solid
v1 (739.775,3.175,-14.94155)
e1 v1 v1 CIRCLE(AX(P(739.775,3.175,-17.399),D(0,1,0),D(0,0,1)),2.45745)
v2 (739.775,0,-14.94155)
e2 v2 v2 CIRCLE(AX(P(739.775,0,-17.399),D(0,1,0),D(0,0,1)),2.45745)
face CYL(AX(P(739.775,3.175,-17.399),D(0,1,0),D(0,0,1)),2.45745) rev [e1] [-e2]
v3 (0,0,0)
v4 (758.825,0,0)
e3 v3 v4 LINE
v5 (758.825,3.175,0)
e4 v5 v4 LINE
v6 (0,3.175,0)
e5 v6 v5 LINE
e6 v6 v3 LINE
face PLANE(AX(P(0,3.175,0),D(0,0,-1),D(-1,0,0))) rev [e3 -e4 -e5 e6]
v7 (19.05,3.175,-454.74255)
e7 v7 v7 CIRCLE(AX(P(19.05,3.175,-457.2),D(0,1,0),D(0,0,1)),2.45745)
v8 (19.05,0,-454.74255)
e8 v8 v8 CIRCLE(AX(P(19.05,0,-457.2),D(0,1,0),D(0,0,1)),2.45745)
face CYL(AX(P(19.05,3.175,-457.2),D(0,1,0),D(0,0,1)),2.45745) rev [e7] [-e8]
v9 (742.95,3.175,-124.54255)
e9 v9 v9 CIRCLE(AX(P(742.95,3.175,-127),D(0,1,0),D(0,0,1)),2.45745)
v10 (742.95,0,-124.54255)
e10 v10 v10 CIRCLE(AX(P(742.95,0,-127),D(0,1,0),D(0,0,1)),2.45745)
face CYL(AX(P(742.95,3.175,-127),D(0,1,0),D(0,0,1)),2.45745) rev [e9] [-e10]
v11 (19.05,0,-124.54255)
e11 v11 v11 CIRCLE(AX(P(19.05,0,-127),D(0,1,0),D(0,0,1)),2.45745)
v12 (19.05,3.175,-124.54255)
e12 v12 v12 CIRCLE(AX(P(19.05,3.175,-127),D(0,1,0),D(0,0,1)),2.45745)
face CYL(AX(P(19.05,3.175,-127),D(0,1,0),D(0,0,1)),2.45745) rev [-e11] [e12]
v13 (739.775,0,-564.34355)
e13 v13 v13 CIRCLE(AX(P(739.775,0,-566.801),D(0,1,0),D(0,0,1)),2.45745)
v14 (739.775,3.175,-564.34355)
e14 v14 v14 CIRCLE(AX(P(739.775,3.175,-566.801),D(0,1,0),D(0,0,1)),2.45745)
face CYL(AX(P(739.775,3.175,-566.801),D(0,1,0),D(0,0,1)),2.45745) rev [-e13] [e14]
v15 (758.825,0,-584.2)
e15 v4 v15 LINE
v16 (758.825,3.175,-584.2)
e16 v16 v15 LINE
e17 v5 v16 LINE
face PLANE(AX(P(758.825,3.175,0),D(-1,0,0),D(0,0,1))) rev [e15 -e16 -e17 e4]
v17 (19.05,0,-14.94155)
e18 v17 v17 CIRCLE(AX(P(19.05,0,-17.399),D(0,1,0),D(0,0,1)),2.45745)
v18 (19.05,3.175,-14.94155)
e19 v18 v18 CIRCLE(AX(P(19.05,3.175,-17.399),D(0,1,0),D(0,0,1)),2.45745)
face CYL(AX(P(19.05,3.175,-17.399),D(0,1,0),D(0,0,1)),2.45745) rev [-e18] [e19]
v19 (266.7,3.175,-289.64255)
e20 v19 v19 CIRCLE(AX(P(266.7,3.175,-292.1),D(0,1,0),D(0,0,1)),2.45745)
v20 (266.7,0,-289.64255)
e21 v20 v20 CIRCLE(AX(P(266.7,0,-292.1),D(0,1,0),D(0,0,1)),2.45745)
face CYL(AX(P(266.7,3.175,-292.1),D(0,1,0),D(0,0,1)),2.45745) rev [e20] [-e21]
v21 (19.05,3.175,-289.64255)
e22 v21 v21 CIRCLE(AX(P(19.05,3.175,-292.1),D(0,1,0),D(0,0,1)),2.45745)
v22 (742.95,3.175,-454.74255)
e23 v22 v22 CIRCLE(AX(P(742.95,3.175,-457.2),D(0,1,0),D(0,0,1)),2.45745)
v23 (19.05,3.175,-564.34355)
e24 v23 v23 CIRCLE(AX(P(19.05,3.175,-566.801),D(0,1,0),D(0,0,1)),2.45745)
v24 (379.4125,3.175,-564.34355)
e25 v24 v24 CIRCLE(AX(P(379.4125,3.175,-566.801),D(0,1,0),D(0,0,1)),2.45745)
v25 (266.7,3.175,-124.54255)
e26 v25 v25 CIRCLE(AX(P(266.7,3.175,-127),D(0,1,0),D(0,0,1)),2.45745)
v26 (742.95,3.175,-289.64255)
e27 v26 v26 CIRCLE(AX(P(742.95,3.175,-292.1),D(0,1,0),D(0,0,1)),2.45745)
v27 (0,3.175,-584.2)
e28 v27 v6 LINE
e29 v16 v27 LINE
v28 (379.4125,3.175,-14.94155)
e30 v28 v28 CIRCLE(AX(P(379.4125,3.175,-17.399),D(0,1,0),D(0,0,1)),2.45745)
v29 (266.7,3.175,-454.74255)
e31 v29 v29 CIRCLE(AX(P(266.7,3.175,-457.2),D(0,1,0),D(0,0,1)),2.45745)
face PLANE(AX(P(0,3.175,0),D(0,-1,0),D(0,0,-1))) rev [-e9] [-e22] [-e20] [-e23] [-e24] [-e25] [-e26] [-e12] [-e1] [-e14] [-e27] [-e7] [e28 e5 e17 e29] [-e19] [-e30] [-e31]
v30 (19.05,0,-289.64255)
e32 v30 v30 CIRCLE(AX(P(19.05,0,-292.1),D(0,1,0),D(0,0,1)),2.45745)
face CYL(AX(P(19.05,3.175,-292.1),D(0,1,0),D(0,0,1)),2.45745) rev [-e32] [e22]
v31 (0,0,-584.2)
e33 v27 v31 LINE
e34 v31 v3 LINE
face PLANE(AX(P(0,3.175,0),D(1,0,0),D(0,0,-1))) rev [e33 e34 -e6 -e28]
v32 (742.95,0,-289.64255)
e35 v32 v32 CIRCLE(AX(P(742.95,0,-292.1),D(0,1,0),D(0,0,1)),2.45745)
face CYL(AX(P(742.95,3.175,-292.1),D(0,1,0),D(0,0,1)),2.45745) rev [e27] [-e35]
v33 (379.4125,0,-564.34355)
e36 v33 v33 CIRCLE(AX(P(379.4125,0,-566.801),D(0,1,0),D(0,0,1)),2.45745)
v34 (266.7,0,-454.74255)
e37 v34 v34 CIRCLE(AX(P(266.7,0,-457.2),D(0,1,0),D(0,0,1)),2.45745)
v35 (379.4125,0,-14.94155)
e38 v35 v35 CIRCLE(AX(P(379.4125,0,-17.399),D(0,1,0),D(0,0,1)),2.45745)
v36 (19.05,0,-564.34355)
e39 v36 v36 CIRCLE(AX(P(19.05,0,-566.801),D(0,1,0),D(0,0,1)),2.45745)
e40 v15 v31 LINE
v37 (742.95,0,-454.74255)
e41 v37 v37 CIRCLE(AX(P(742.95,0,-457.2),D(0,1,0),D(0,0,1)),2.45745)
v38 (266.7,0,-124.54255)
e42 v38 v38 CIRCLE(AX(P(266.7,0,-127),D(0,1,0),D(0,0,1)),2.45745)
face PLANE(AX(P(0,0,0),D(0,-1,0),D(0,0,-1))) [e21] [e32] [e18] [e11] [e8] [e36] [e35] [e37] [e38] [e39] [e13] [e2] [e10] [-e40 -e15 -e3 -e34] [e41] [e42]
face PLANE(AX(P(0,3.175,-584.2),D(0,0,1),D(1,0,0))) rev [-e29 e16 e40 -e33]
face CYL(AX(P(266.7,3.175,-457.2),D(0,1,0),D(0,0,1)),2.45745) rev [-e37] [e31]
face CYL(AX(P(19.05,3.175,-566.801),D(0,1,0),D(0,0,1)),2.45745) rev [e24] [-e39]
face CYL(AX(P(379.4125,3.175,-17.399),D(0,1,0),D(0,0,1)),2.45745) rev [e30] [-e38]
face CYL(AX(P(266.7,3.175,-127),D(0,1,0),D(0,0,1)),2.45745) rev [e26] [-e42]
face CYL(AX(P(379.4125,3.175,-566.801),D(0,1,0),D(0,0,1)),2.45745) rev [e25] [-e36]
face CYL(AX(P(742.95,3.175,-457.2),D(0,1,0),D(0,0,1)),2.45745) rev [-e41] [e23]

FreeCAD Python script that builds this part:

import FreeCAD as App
import Part
import Sketcher
Q = App.Units.Quantity


def add_polygon(sketch, points):
    """Adds a closed chain of lines whose ends are joined by coincident constraints."""
    first, n = sketch.GeometryCount, len(points)
    for a, b in zip(points, points[1:] + points[:1]):
        sketch.addGeometry(Part.LineSegment(App.Vector(*a, 0), App.Vector(*b, 0)), False)
    for i in range(n):
        sketch.addConstraint(Sketcher.Constraint("Coincident", first + i, 2, first + (i + 1) % n, 1))

doc = App.newDocument("Part")
body = doc.addObject("PartDesign::Body", "Body")

# Sketch on XZ plane
sketch1 = doc.addObject("Sketcher::SketchObject", "Sketch")
body.addObject(sketch1)
sketch1.AttachmentSupport = (doc.XZ_Plane, [""])
sketch1.MapMode = "FlatFace"
add_polygon(sketch1, [(0, -584.2), (0, 0), (758.825, 0), (758.825, -584.2)])  # lines 0-3
sketch1.addConstraint([
    Sketcher.Constraint("Vertical", 0),
    Sketcher.Constraint("Horizontal", 1),
    Sketcher.Constraint("Vertical", 2),
    Sketcher.Constraint("Horizontal", 3),
    Sketcher.Constraint("Coincident", 0, 2, -1, 1),
    Sketcher.Constraint("DistanceY", 0, 1, 0, 2, Q("23 in")),
    Sketcher.Constraint("DistanceX", 1, 1, 1, 2, Q("29.875 in")),
])
pad1 = doc.addObject("PartDesign::Pad", "Pad")
body.addObject(pad1)
pad1.Profile = sketch1
pad1.Length = Q("0.125 in")
pad1.Reversed = True

# Sketch on XZ plane
sketch2 = doc.addObject("Sketcher::SketchObject", "Sketch001")
body.addObject(sketch2)
sketch2.AttachmentSupport = (doc.XZ_Plane, [""])
sketch2.MapMode = "FlatFace"
sketch2.AttachmentOffset = App.Placement(App.Vector(0, 0, -0.125 * 25.4), App.Rotation())
sketch2.addGeometry([
    Part.Circle(App.Vector(19.05, -566.801, 0), App.Vector(0, 0, 1), 2.45745),  # 0
    Part.Circle(App.Vector(739.775, -566.801, 0), App.Vector(0, 0, 1), 2.45745),  # 1
    Part.Circle(App.Vector(19.05, -17.399, 0), App.Vector(0, 0, 1), 2.45745),  # 2
    Part.Circle(App.Vector(739.775, -17.399, 0), App.Vector(0, 0, 1), 2.45745),  # 3
    Part.Circle(App.Vector(379.4125, -566.801, 0), App.Vector(0, 0, 1), 2.45745),  # 4
    Part.Circle(App.Vector(19.05, -292.1, 0), App.Vector(0, 0, 1), 2.45745),  # 5
    Part.Circle(App.Vector(379.4125, -17.399, 0), App.Vector(0, 0, 1), 2.45745),  # 6
    Part.Circle(App.Vector(742.95, -292.1, 0), App.Vector(0, 0, 1), 2.45745),  # 7
    Part.Circle(App.Vector(19.05, -457.2, 0), App.Vector(0, 0, 1), 2.45745),  # 8
    Part.Circle(App.Vector(19.05, -127, 0), App.Vector(0, 0, 1), 2.45745),  # 9
    Part.Circle(App.Vector(742.95, -127, 0), App.Vector(0, 0, 1), 2.45745),  # 10
    Part.Circle(App.Vector(742.95, -457.2, 0), App.Vector(0, 0, 1), 2.45745),  # 11
], False)
sketch2.addConstraint([
    Sketcher.Constraint("Equal", 0, 1),
    Sketcher.Constraint("Equal", 1, 2),
    Sketcher.Constraint("Equal", 2, 3),
    Sketcher.Constraint("Equal", 3, 4),
    Sketcher.Constraint("Equal", 4, 5),
    Sketcher.Constraint("Equal", 5, 6),
    Sketcher.Constraint("Equal", 6, 7),
    Sketcher.Constraint("Equal", 7, 8),
    Sketcher.Constraint("Equal", 8, 9),
    Sketcher.Constraint("Equal", 9, 10),
    Sketcher.Constraint("Equal", 10, 11),
    Sketcher.Constraint("Horizontal", 0, 3, 1, 3),
    Sketcher.Constraint("Horizontal", 2, 3, 3, 3),
    Sketcher.Constraint("Horizontal", 1, 3, 4, 3),
    Sketcher.Constraint("Horizontal", 3, 3, 6, 3),
    Sketcher.Constraint("Horizontal", 5, 3, 7, 3),
    Sketcher.Constraint("Horizontal", 9, 3, 10, 3),
    Sketcher.Constraint("Horizontal", 8, 3, 11, 3),
    Sketcher.Constraint("Vertical", 0, 3, 2, 3),
    Sketcher.Constraint("Vertical", 1, 3, 3, 3),
    Sketcher.Constraint("Vertical", 2, 3, 5, 3),
    Sketcher.Constraint("Vertical", 4, 3, 6, 3),
    Sketcher.Constraint("Vertical", 5, 3, 8, 3),
    Sketcher.Constraint("Vertical", 8, 3, 9, 3),
    Sketcher.Constraint("Vertical", 7, 3, 10, 3),
    Sketcher.Constraint("Vertical", 10, 3, 11, 3),
    Sketcher.Constraint("DistanceY", 8, 3, -1, 1, Q("18 in")),
    Sketcher.Constraint("DistanceY", 9, 3, -1, 1, Q("5 in")),
    Sketcher.Constraint("Diameter", 0, Q("0.1935 in")),
    Sketcher.Constraint("DistanceY", 5, 3, -1, 1, Q("11.5 in")),
    Sketcher.Constraint("DistanceX", 5, 3, 7, 3, Q("28.5 in")),
    Sketcher.Constraint("DistanceX", -1, 1, 0, 3, Q("0.75 in")),
    Sketcher.Constraint("DistanceY", 0, 3, 2, 3, Q("21.63 in")),
    Sketcher.Constraint("DistanceY", 0, 3, -1, 1, Q("22.315 in")),
    Sketcher.Constraint("DistanceX", -1, 1, 1, 3, Q("29.125 in")),
    Sketcher.Constraint("DistanceX", -1, 1, 4, 3, Q("14.9375 in")),
])
doc.recompute()
hole = doc.addObject("PartDesign::Hole", "Hole")
body.addObject(hole)
hole.Profile = sketch2
hole.ThreadType = "None"
hole.Diameter = Q("0.1935 in")
hole.DepthType = "ThroughAll"
hole.Reversed = True

# Sketch on XZ plane
sketch3 = doc.addObject("Sketcher::SketchObject", "Sketch002")
body.addObject(sketch3)
sketch3.AttachmentSupport = (doc.XZ_Plane, [""])
sketch3.MapMode = "FlatFace"
sketch3.AttachmentOffset = App.Placement(App.Vector(0, 0, -0.125 * 25.4), App.Rotation())
sketch3.addGeometry([
    Part.Circle(App.Vector(266.7, -292.1, 0), App.Vector(0, 0, 1), 2.45745),
    Part.Circle(App.Vector(266.7, -127, 0), App.Vector(0, 0, 1), 2.45745),
    Part.Circle(App.Vector(266.7, -457.2, 0), App.Vector(0, 0, 1), 2.45745),
], False)
sketch3.addConstraint([
    Sketcher.Constraint("Equal", 0, 1),
    Sketcher.Constraint("Equal", 1, 2),
    Sketcher.Constraint("Vertical", 0, 3, 1, 3),
    Sketcher.Constraint("Vertical", 1, 3, 2, 3),
    Sketcher.Constraint("DistanceY", 1, 3, -1, 1, Q("5 in")),
    Sketcher.Constraint("DistanceY", 2, 3, -1, 1, Q("18 in")),
    Sketcher.Constraint("Diameter", 0, Q("0.1935 in")),
    Sketcher.Constraint("DistanceX", -1, 1, 0, 3, Q("10.5 in")),
    Sketcher.Constraint("DistanceY", 0, 3, -1, 1, Q("11.5 in")),
])
doc.recompute()
hole2 = doc.addObject("PartDesign::Hole", "Hole001")
body.addObject(hole2)
hole2.Profile = sketch3
hole2.ThreadType = "None"
hole2.Diameter = Q("0.1935 in")
hole2.DepthType = "ThroughAll"
hole2.Reversed = True

doc.recompute()
